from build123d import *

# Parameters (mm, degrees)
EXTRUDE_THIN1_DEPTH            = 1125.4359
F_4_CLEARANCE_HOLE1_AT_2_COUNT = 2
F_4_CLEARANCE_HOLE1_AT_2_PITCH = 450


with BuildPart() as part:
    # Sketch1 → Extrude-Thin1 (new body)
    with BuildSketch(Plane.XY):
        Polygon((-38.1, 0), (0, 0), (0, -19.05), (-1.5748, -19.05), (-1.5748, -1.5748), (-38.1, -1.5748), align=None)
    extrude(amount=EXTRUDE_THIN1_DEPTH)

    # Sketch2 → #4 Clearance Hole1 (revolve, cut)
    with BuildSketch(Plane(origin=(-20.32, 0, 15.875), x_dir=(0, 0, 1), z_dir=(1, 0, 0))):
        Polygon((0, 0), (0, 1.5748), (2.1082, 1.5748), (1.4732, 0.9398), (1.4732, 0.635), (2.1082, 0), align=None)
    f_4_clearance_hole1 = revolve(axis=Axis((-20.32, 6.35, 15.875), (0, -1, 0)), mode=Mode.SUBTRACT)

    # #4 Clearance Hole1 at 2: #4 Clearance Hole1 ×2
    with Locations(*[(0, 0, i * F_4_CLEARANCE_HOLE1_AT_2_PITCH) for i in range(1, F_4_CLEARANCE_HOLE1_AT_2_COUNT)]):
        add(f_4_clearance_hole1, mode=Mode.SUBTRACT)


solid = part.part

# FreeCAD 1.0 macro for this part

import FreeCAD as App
import Part
import Sketcher
from FreeCAD import Vector
Q = App.Units.Quantity


def add_polygon(sketch, points):
    """Adds a closed chain of lines whose ends are joined by coincident constraints."""
    first, n = sketch.GeometryCount, len(points)
    for a, b in zip(points, points[1:] + points[:1]):
        sketch.addGeometry(Part.LineSegment(App.Vector(*a, 0), App.Vector(*b, 0)), False)
    for i in range(n):
        sketch.addConstraint(Sketcher.Constraint("Coincident", first + i, 2, first + (i + 1) % n, 1))

doc = App.newDocument("Part")
body = doc.addObject("PartDesign::Body", "Body")

# Sketch on XY plane
sketch1 = doc.addObject("Sketcher::SketchObject", "Sketch")
body.addObject(sketch1)
sketch1.AttachmentSupport = (doc.XY_Plane, [""])
sketch1.MapMode = "FlatFace"
add_polygon(sketch1, [(0, 0), (-38.1, 0), (-38.1, -1.6), (-1.6, -1.6), (-1.6, -19.1), (0, -19.1)])  # lines 0-5
sketch1.addConstraint(Sketcher.Constraint("Horizontal", 0))
sketch1.addConstraint(Sketcher.Constraint("Vertical", 1))
sketch1.addConstraint(Sketcher.Constraint("Horizontal", 2))
sketch1.addConstraint(Sketcher.Constraint("Vertical", 3))
sketch1.addConstraint(Sketcher.Constraint("Horizontal", 4))
sketch1.addConstraint(Sketcher.Constraint("Vertical", 5))
sketch1.addConstraint(Sketcher.Constraint("Coincident", 5, 2, -1, 1))
sketch1.addConstraint(Sketcher.Constraint("Equal", 4, 1))
sketch1.addConstraint(Sketcher.Constraint("DistanceX", 0, 2, 0, 1, Q("1.5 in")))
sketch1.addConstraint(Sketcher.Constraint("DistanceY", 5, 1, 5, 2, Q("0.75 in")))
sketch1.addConstraint(Sketcher.Constraint("DistanceX", 2, 1, 2, 2, Q("1.438 in")))
pad1 = doc.addObject("PartDesign::Pad", "Pad")
body.addObject(pad1)
pad1.Profile = sketch1
pad1.Length = Q("44.3085 in")

# Sketch on YZ plane
sketch2 = doc.addObject("Sketcher::SketchObject", "Sketch001")
body.addObject(sketch2)
sketch2.AttachmentSupport = (doc.YZ_Plane, [""])
sketch2.MapMode = "FlatFace"
sketch2.AttachmentOffset = App.Placement(Vector(0, 0, -0.8 * 25.4), App.Rotation())
add_polygon(sketch2, [(-1.57, 15.88), (0, 15.88), (0, 17.98), (-0.64, 17.35), (-0.94, 17.35), (-1.57, 17.98)])  # lines 0-5
sketch2.addGeometry(Part.LineSegment(Vector(0, 15.88, 0), Vector(-1.57, 15.88, 0)), True)  # axis
sketch2.addConstraint(Sketcher.Constraint("Horizontal", 0))
sketch2.addConstraint(Sketcher.Constraint("Vertical", 1))
sketch2.addConstraint(Sketcher.Constraint("Horizontal", 3))
sketch2.addConstraint(Sketcher.Constraint("Vertical", 5))
sketch2.addConstraint(Sketcher.Constraint("Horizontal", 6))
sketch2.addConstraint(Sketcher.Constraint("Coincident", 6, 1, 0, 2))
sketch2.addConstraint(Sketcher.Constraint("PointOnObject", 0, 2, -2))
sketch2.addConstraint(Sketcher.Constraint("Perpendicular", 2, 4))
sketch2.addConstraint(Sketcher.Constraint("Horizontal", 1, 2, 4, 2))
sketch2.addConstraint(Sketcher.Constraint("Vertical", 4, 2, 6, 2))
sketch2.addConstraint(Sketcher.Constraint("Equal", 2, 4))
sketch2.addConstraint(Sketcher.Constraint("DistanceX", 0, 1, 0, 2, Q("0.062 in")))
sketch2.addConstraint(Sketcher.Constraint("DistanceX", 3, 2, 3, 1, Q("0.012 in")))
sketch2.addConstraint(Sketcher.Constraint("DistanceY", 1, 1, 1, 2, Q("0.083 in")))
sketch2.addConstraint(Sketcher.Constraint("DistanceY", -1, 1, 0, 2, Q("0.625 in")))
groove = doc.addObject("PartDesign::Groove", "Groove")
body.addObject(groove)
groove.Profile = sketch2
groove.ReferenceAxis = (sketch2, ["Axis0"])
groove.Angle = 360
doc.recompute()

linearpattern = doc.addObject("PartDesign::LinearPattern", "LinearPattern")
body.addObject(linearpattern)
linearpattern.Originals = [groove]
linearpattern.Direction = (doc.Z_Axis, [""])
linearpattern.Mode = "offset"
linearpattern.Offset = 450
linearpattern.Occurrences = 2
body.Tip = linearpattern

doc.recompute()
